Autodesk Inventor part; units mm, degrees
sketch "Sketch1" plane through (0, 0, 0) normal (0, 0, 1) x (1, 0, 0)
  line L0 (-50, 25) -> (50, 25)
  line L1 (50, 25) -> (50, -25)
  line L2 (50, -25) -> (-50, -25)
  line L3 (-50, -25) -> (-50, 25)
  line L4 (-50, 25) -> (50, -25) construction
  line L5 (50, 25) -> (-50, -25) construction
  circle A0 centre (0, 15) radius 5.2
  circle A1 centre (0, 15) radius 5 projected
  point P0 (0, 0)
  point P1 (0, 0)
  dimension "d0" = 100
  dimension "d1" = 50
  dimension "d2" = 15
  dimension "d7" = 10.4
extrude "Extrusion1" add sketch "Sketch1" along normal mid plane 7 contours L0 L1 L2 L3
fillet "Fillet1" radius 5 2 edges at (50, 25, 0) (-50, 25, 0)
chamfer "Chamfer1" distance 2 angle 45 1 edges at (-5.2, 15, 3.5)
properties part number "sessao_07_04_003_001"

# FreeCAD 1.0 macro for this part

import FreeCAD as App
import Part
import Sketcher


def edges_at(feature, points):
    """Names of the edges that pass closest to the given points."""
    edges = feature.Shape.Edges
    near = lambda p: min(range(len(edges)), key=lambda i: edges[i].distToShape(Part.Vertex(*p))[0])
    return sorted({f"Edge{near(p) + 1}" for p in points})


def add_polygon(sketch, points):
    """Adds a closed chain of lines whose ends are joined by coincident constraints."""
    first, n = sketch.GeometryCount, len(points)
    for a, b in zip(points, points[1:] + points[:1]):
        sketch.addGeometry(Part.LineSegment(App.Vector(*a, 0), App.Vector(*b, 0)), False)
    for i in range(n):
        sketch.addConstraint(Sketcher.Constraint("Coincident", first + i, 2, first + (i + 1) % n, 1))

doc = App.newDocument("Part")
params = doc.addObject("Spreadsheet::Sheet", "Params")
for row, (alias, value) in enumerate([
    ("sketch1_diameter", "10.4 mm"),
    ("sketch1_width", "100 mm"),
    ("sketch1_height", "50 mm"),
    ("pad1_length", "7 mm"),
    ("fillet_radius", "5 mm"),
    ("chamfer_size", "2 mm"),
], start=1):
    params.set(f"A{row}", alias)
    params.set(f"B{row}", "=" + value)
    params.setAlias(f"B{row}", alias)

body = doc.addObject("PartDesign::Body", "Body")

# Sketch on XY plane
sketch1 = body.newObject("Sketcher::SketchObject", "Sketch")
sketch1.AttachmentSupport = (doc.getObject("XY_Plane"), [""])
sketch1.MapMode = "FlatFace"
add_polygon(sketch1, [(50, 25), (-50, 25), (-50, -25), (50, -25)])  # lines 0-3
sketch1.addGeometry(Part.Circle(App.Vector(0, 15, 0), App.Vector(0, 0, 1), 5), False)  # 4
sketch1.addConstraint([
    Sketcher.Constraint("Horizontal", 0),
    Sketcher.Constraint("Vertical", 1),
    Sketcher.Constraint("Horizontal", 2),
    Sketcher.Constraint("Vertical", 3),
    Sketcher.Constraint("Symmetric", 0, 2, 2, 2, -1, 1),
    Sketcher.Constraint("PointOnObject", 4, 3, -2),
    Sketcher.Constraint("Diameter", 4, 10.4),
    Sketcher.Constraint("DistanceX", 0, 2, 0, 1, 100.0),
    Sketcher.Constraint("DistanceY", 1, 2, 1, 1, 50.0),
    Sketcher.Constraint("DistanceY", -1, 1, 4, 3, 15.0),
])
sketch1.setExpression("Constraints[10]", "Params.sketch1_diameter")
sketch1.setExpression("Constraints[11]", "Params.sketch1_width")
sketch1.setExpression("Constraints[12]", "Params.sketch1_height")
pad1 = body.newObject("PartDesign::Pad", "Pad")
pad1.Profile = sketch1
pad1.setExpression("Length", "Params.pad1_length")
pad1.Midplane = True
doc.recompute()

fillet = body.newObject("PartDesign::Fillet", "Fillet")
fillet.Base = (pad1, edges_at(pad1, [(50, 25, 0), (-50, 25, 0)]))
fillet.setExpression("Radius", "Params.fillet_radius")
doc.recompute()

chamfer = body.newObject("PartDesign::Chamfer", "Chamfer")
chamfer.Base = (fillet, edges_at(fillet, [(-5.2, 15, 3.5)]))
chamfer.setExpression("Size", "Params.chamfer_size")

doc.recompute()
